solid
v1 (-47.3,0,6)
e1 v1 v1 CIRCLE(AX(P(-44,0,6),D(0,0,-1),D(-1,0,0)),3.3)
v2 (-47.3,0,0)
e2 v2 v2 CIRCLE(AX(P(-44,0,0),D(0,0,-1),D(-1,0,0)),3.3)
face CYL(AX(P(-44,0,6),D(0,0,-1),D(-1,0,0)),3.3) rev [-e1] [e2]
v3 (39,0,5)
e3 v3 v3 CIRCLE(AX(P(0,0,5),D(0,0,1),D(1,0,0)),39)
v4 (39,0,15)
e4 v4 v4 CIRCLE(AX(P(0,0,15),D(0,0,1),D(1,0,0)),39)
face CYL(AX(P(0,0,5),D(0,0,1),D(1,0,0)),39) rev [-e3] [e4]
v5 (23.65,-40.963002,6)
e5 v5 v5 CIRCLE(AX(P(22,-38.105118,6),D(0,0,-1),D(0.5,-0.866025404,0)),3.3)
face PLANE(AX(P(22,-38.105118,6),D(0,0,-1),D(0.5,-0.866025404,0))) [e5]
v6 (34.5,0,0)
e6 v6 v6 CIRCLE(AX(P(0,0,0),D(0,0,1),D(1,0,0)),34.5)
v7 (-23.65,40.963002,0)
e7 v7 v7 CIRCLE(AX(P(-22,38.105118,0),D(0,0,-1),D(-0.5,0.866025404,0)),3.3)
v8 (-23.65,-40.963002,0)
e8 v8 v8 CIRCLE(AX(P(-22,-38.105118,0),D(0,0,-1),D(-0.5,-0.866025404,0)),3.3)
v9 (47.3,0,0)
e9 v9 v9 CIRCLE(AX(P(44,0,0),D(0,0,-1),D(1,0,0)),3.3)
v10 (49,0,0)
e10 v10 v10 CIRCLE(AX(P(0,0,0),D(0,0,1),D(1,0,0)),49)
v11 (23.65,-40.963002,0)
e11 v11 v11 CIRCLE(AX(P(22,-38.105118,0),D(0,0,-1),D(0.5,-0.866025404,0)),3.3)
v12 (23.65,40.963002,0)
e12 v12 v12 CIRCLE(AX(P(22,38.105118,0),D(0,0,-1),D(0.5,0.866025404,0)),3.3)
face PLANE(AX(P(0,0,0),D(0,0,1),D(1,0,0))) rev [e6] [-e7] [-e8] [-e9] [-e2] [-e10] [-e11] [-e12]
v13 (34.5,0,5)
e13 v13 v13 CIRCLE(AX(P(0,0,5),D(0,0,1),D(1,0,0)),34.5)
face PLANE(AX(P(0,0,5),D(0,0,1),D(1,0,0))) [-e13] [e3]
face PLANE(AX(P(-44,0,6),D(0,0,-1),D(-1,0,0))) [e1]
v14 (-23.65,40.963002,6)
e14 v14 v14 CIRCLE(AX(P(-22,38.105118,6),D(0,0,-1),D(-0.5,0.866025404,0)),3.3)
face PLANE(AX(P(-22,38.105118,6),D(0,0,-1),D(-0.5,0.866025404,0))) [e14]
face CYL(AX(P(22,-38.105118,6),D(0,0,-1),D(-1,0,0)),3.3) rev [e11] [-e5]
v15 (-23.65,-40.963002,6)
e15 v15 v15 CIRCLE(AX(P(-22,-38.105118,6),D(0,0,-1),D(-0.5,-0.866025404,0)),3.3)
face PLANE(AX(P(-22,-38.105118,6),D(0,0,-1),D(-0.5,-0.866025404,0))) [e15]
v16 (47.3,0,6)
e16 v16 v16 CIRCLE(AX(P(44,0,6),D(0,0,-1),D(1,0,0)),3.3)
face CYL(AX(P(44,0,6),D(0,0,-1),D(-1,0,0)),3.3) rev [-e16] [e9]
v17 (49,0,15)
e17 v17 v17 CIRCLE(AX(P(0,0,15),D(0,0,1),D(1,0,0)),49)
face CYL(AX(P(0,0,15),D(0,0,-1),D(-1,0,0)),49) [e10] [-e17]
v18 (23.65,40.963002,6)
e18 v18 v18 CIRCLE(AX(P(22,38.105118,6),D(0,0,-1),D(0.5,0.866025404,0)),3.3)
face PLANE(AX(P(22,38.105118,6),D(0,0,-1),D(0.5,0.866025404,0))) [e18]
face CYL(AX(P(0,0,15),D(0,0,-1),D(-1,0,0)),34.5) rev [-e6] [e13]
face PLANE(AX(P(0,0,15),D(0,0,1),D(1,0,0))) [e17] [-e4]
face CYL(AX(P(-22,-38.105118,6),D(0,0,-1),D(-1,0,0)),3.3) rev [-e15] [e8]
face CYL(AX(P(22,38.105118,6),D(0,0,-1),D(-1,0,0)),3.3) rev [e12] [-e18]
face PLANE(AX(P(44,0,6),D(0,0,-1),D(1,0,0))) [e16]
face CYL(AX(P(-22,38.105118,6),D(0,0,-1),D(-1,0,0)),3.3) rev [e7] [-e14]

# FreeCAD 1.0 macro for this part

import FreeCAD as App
import Part
import Sketcher

V = App.Vector

doc = App.newDocument("Part")
body = doc.addObject("PartDesign::Body", "Body")

# Sketch on XY plane
sketch1 = body.newObject("Sketcher::SketchObject", "Sketch")
sketch1.AttachmentSupport = (doc.getObject("XY_Plane"), [""])
sketch1.MapMode = "FlatFace"
sketch1.addGeometry(Part.Circle(V(0, 0, 0), V(0, 0, 1), 49), False)
sketch1.addGeometry(Part.Circle(V(0, 0, 0), V(0, 0, 1), 34.5), False)
sketch1.addConstraint(Sketcher.Constraint("Coincident", 0, 3, -1, 1))
sketch1.addConstraint(Sketcher.Constraint("Coincident", 1, 3, -1, 1))
sketch1.addConstraint(Sketcher.Constraint("Diameter", 0, 98.0))
sketch1.addConstraint(Sketcher.Constraint("Diameter", 1, 69.0))
pad1 = body.newObject("PartDesign::Pad", "Pad")
pad1.Profile = sketch1
pad1.Length = 15

# Sketch on XY plane
sketch2 = body.newObject("Sketcher::SketchObject", "Sketch001")
sketch2.AttachmentSupport = (doc.getObject("XY_Plane"), [""])
sketch2.MapMode = "FlatFace"
sketch2.addGeometry(Part.Circle(V(-44, 0, 0), V(0, 0, 1), 3.3), False)
sketch2.addConstraint(Sketcher.Constraint("PointOnObject", 0, 3, -1))
sketch2.addConstraint(Sketcher.Constraint("Diameter", 0, 6.6))
sketch2.addConstraint(Sketcher.Constraint("DistanceX", 0, 3, -1, 1, 44.0))
pocket1 = body.newObject("PartDesign::Pocket", "Pocket")
pocket1.Profile = sketch2
pocket1.Length = 6
pocket1.Reversed = True
doc.recompute()

polarpattern = body.newObject("PartDesign::PolarPattern", "PolarPattern")
polarpattern.Originals = [pocket1]
polarpattern.Axis = (doc.getObject("Z_Axis"), [""])
polarpattern.Angle = 360
polarpattern.Occurrences = 6
body.Tip = polarpattern

# Sketch on XY plane
sketch3 = body.newObject("Sketcher::SketchObject", "Sketch002")
sketch3.AttachmentSupport = (doc.getObject("XY_Plane"), [""])
sketch3.MapMode = "FlatFace"
sketch3.AttachmentOffset = App.Placement(V(0, 0, 15), App.Rotation())
sketch3.addGeometry(Part.Circle(V(0, 0, 0), V(0, 0, 1), 39), False)
sketch3.addConstraint(Sketcher.Constraint("Coincident", 0, 3, -1, 1))
sketch3.addConstraint(Sketcher.Constraint("Diameter", 0, 78.0))
pocket2 = body.newObject("PartDesign::Pocket", "Pocket001")
pocket2.Profile = sketch3
pocket2.Length = 10

doc.recompute()
